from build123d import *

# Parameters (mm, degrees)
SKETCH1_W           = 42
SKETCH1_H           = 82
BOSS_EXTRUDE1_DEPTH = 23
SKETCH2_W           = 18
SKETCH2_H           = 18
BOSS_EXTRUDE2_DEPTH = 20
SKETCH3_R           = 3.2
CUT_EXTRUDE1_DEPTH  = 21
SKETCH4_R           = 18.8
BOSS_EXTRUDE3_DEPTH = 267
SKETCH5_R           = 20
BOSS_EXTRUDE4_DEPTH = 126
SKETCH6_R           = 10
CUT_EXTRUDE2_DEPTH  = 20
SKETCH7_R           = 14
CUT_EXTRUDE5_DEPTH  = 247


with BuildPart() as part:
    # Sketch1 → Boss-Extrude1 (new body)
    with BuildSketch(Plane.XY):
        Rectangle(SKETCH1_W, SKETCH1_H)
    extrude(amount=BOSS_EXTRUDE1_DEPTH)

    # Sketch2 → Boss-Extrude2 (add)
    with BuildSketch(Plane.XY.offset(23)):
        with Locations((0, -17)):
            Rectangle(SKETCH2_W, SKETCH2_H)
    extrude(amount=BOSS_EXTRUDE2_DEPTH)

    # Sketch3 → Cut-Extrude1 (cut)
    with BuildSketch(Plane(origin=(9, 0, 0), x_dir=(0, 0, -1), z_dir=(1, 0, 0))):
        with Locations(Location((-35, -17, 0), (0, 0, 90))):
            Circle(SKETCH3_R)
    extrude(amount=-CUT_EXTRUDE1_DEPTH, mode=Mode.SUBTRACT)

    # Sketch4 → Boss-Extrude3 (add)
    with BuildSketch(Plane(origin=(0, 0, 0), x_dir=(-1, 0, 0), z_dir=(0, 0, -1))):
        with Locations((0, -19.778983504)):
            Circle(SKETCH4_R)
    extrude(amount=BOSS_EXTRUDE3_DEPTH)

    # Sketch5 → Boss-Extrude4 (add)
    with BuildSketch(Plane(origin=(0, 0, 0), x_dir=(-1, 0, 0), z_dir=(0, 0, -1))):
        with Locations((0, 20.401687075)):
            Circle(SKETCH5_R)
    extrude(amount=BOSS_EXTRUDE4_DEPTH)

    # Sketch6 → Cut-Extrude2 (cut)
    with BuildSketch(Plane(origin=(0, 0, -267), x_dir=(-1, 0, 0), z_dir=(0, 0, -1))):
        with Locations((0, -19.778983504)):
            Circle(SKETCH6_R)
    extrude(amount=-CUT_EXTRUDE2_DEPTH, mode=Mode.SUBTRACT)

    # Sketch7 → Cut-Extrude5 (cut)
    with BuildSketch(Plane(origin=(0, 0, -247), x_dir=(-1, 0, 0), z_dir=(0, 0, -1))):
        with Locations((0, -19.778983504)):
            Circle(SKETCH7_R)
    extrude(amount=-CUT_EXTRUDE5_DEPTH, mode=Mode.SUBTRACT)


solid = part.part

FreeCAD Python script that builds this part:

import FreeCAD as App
import Part
import Sketcher
from FreeCAD import Vector


def add_polygon(sketch, points):
    """Adds a closed chain of lines whose ends are joined by coincident constraints."""
    first, n = sketch.GeometryCount, len(points)
    for a, b in zip(points, points[1:] + points[:1]):
        sketch.addGeometry(Part.LineSegment(App.Vector(*a, 0), App.Vector(*b, 0)), False)
    for i in range(n):
        sketch.addConstraint(Sketcher.Constraint("Coincident", first + i, 2, first + (i + 1) % n, 1))

doc = App.newDocument("Part")
body = doc.addObject("PartDesign::Body", "Body")

# Sketch on XY plane
sketch1 = body.newObject("Sketcher::SketchObject", "Sketch")
sketch1.AttachmentSupport = (doc.getObject("XY_Plane"), [""])
sketch1.MapMode = "FlatFace"
add_polygon(sketch1, [(-21, 41), (-21, -41), (21, -41), (21, 41)])  # lines 0-3
sketch1.addConstraint(Sketcher.Constraint("Vertical", 0))
sketch1.addConstraint(Sketcher.Constraint("Horizontal", 1))
sketch1.addConstraint(Sketcher.Constraint("Vertical", 2))
sketch1.addConstraint(Sketcher.Constraint("Horizontal", 3))
sketch1.addConstraint(Sketcher.Constraint("Symmetric", 0, 2, 2, 2, -1, 1))
sketch1.addConstraint(Sketcher.Constraint("DistanceX", 1, 1, 1, 2, 42.0))
sketch1.addConstraint(Sketcher.Constraint("DistanceY", 0, 2, 0, 1, 82.0))
pad1 = body.newObject("PartDesign::Pad", "Pad")
pad1.Profile = sketch1
pad1.Length = 23

# Sketch on XY plane
sketch2 = body.newObject("Sketcher::SketchObject", "Sketch001")
sketch2.AttachmentSupport = (doc.getObject("XY_Plane"), [""])
sketch2.MapMode = "FlatFace"
sketch2.AttachmentOffset = App.Placement(Vector(0, 0, 23), App.Rotation())
add_polygon(sketch2, [(-9, -8), (-9, -26), (9, -26), (9, -8)])  # lines 0-3
sketch2.addConstraint(Sketcher.Constraint("Vertical", 0))
sketch2.addConstraint(Sketcher.Constraint("Horizontal", 1))
sketch2.addConstraint(Sketcher.Constraint("Vertical", 2))
sketch2.addConstraint(Sketcher.Constraint("Horizontal", 3))
sketch2.addConstraint(Sketcher.Constraint("Equal", 3, 0))
sketch2.addConstraint(Sketcher.Constraint("DistanceX", 1, 1, 1, 2, 18.0))
sketch2.addConstraint(Sketcher.Constraint("DistanceX", 0, 2, -1, 1, 9.0))
sketch2.addConstraint(Sketcher.Constraint("DistanceY", 0, 2, -1, 1, 26.0))
pad2 = body.newObject("PartDesign::Pad", "Pad001")
pad2.Profile = sketch2
pad2.Length = 20

# Sketch on YZ plane
sketch3 = body.newObject("Sketcher::SketchObject", "Sketch002")
sketch3.AttachmentSupport = (doc.getObject("YZ_Plane"), [""])
sketch3.MapMode = "FlatFace"
sketch3.AttachmentOffset = App.Placement(Vector(0, 0, 9), App.Rotation())
sketch3.addGeometry(Part.Circle(Vector(-17, 35, 0), Vector(0, 0, 1), 3.2), False)
sketch3.addConstraint(Sketcher.Constraint("Diameter", 0, 6.4))
sketch3.addConstraint(Sketcher.Constraint("DistanceX", 0, 3, -1, 1, 17.0))
sketch3.addConstraint(Sketcher.Constraint("DistanceY", -1, 1, 0, 3, 35.0))
pocket1 = body.newObject("PartDesign::Pocket", "Pocket")
pocket1.Profile = sketch3
pocket1.Length = 21

# Sketch on XY plane
sketch4 = body.newObject("Sketcher::SketchObject", "Sketch003")
sketch4.AttachmentSupport = (doc.getObject("XY_Plane"), [""])
sketch4.MapMode = "FlatFace"
sketch4.addGeometry(Part.Circle(Vector(0, -20, 0), Vector(0, 0, 1), 19), False)
sketch4.addConstraint(Sketcher.Constraint("PointOnObject", 0, 3, -2))
sketch4.addConstraint(Sketcher.Constraint("Diameter", 0, 37.6))
sketch4.addConstraint(Sketcher.Constraint("DistanceY", 0, 3, -1, 1, 19.778984))
pad3 = body.newObject("PartDesign::Pad", "Pad002")
pad3.Profile = sketch4
pad3.Length = 267
pad3.Reversed = True

# Sketch on XY plane
sketch5 = body.newObject("Sketcher::SketchObject", "Sketch004")
sketch5.AttachmentSupport = (doc.getObject("XY_Plane"), [""])
sketch5.MapMode = "FlatFace"
sketch5.addGeometry(Part.Circle(Vector(0, 20, 0), Vector(0, 0, 1), 20), False)
sketch5.addConstraint(Sketcher.Constraint("PointOnObject", 0, 3, -2))
sketch5.addConstraint(Sketcher.Constraint("Diameter", 0, 40.0))
sketch5.addConstraint(Sketcher.Constraint("DistanceY", -1, 1, 0, 3, 20.401687))
pad4 = body.newObject("PartDesign::Pad", "Pad003")
pad4.Profile = sketch5
pad4.Length = 126
pad4.Reversed = True

# Sketch on XY plane
sketch6 = body.newObject("Sketcher::SketchObject", "Sketch005")
sketch6.AttachmentSupport = (doc.getObject("XY_Plane"), [""])
sketch6.MapMode = "FlatFace"
sketch6.AttachmentOffset = App.Placement(Vector(0, 0, -267), App.Rotation())
sketch6.addGeometry(Part.Circle(Vector(0, -20, 0), Vector(0, 0, 1), 10), False)
sketch6.addConstraint(Sketcher.Constraint("PointOnObject", 0, 3, -2))
sketch6.addConstraint(Sketcher.Constraint("Diameter", 0, 20.0))
sketch6.addConstraint(Sketcher.Constraint("DistanceY", 0, 3, -1, 1, 19.778984))
pocket2 = body.newObject("PartDesign::Pocket", "Pocket001")
pocket2.Profile = sketch6
pocket2.Length = 20
pocket2.Reversed = True

# Sketch on XY plane
sketch7 = body.newObject("Sketcher::SketchObject", "Sketch006")
sketch7.AttachmentSupport = (doc.getObject("XY_Plane"), [""])
sketch7.MapMode = "FlatFace"
sketch7.AttachmentOffset = App.Placement(Vector(0, 0, -247), App.Rotation())
sketch7.addGeometry(Part.Circle(Vector(0, -20, 0), Vector(0, 0, 1), 14), False)
sketch7.addConstraint(Sketcher.Constraint("PointOnObject", 0, 3, -2))
sketch7.addConstraint(Sketcher.Constraint("Diameter", 0, 28.0))
sketch7.addConstraint(Sketcher.Constraint("DistanceY", 0, 3, -1, 1, 19.778984))
pocket3 = body.newObject("PartDesign::Pocket", "Pocket002")
pocket3.Profile = sketch7
pocket3.Length = 247
pocket3.Reversed = True

doc.recompute()
